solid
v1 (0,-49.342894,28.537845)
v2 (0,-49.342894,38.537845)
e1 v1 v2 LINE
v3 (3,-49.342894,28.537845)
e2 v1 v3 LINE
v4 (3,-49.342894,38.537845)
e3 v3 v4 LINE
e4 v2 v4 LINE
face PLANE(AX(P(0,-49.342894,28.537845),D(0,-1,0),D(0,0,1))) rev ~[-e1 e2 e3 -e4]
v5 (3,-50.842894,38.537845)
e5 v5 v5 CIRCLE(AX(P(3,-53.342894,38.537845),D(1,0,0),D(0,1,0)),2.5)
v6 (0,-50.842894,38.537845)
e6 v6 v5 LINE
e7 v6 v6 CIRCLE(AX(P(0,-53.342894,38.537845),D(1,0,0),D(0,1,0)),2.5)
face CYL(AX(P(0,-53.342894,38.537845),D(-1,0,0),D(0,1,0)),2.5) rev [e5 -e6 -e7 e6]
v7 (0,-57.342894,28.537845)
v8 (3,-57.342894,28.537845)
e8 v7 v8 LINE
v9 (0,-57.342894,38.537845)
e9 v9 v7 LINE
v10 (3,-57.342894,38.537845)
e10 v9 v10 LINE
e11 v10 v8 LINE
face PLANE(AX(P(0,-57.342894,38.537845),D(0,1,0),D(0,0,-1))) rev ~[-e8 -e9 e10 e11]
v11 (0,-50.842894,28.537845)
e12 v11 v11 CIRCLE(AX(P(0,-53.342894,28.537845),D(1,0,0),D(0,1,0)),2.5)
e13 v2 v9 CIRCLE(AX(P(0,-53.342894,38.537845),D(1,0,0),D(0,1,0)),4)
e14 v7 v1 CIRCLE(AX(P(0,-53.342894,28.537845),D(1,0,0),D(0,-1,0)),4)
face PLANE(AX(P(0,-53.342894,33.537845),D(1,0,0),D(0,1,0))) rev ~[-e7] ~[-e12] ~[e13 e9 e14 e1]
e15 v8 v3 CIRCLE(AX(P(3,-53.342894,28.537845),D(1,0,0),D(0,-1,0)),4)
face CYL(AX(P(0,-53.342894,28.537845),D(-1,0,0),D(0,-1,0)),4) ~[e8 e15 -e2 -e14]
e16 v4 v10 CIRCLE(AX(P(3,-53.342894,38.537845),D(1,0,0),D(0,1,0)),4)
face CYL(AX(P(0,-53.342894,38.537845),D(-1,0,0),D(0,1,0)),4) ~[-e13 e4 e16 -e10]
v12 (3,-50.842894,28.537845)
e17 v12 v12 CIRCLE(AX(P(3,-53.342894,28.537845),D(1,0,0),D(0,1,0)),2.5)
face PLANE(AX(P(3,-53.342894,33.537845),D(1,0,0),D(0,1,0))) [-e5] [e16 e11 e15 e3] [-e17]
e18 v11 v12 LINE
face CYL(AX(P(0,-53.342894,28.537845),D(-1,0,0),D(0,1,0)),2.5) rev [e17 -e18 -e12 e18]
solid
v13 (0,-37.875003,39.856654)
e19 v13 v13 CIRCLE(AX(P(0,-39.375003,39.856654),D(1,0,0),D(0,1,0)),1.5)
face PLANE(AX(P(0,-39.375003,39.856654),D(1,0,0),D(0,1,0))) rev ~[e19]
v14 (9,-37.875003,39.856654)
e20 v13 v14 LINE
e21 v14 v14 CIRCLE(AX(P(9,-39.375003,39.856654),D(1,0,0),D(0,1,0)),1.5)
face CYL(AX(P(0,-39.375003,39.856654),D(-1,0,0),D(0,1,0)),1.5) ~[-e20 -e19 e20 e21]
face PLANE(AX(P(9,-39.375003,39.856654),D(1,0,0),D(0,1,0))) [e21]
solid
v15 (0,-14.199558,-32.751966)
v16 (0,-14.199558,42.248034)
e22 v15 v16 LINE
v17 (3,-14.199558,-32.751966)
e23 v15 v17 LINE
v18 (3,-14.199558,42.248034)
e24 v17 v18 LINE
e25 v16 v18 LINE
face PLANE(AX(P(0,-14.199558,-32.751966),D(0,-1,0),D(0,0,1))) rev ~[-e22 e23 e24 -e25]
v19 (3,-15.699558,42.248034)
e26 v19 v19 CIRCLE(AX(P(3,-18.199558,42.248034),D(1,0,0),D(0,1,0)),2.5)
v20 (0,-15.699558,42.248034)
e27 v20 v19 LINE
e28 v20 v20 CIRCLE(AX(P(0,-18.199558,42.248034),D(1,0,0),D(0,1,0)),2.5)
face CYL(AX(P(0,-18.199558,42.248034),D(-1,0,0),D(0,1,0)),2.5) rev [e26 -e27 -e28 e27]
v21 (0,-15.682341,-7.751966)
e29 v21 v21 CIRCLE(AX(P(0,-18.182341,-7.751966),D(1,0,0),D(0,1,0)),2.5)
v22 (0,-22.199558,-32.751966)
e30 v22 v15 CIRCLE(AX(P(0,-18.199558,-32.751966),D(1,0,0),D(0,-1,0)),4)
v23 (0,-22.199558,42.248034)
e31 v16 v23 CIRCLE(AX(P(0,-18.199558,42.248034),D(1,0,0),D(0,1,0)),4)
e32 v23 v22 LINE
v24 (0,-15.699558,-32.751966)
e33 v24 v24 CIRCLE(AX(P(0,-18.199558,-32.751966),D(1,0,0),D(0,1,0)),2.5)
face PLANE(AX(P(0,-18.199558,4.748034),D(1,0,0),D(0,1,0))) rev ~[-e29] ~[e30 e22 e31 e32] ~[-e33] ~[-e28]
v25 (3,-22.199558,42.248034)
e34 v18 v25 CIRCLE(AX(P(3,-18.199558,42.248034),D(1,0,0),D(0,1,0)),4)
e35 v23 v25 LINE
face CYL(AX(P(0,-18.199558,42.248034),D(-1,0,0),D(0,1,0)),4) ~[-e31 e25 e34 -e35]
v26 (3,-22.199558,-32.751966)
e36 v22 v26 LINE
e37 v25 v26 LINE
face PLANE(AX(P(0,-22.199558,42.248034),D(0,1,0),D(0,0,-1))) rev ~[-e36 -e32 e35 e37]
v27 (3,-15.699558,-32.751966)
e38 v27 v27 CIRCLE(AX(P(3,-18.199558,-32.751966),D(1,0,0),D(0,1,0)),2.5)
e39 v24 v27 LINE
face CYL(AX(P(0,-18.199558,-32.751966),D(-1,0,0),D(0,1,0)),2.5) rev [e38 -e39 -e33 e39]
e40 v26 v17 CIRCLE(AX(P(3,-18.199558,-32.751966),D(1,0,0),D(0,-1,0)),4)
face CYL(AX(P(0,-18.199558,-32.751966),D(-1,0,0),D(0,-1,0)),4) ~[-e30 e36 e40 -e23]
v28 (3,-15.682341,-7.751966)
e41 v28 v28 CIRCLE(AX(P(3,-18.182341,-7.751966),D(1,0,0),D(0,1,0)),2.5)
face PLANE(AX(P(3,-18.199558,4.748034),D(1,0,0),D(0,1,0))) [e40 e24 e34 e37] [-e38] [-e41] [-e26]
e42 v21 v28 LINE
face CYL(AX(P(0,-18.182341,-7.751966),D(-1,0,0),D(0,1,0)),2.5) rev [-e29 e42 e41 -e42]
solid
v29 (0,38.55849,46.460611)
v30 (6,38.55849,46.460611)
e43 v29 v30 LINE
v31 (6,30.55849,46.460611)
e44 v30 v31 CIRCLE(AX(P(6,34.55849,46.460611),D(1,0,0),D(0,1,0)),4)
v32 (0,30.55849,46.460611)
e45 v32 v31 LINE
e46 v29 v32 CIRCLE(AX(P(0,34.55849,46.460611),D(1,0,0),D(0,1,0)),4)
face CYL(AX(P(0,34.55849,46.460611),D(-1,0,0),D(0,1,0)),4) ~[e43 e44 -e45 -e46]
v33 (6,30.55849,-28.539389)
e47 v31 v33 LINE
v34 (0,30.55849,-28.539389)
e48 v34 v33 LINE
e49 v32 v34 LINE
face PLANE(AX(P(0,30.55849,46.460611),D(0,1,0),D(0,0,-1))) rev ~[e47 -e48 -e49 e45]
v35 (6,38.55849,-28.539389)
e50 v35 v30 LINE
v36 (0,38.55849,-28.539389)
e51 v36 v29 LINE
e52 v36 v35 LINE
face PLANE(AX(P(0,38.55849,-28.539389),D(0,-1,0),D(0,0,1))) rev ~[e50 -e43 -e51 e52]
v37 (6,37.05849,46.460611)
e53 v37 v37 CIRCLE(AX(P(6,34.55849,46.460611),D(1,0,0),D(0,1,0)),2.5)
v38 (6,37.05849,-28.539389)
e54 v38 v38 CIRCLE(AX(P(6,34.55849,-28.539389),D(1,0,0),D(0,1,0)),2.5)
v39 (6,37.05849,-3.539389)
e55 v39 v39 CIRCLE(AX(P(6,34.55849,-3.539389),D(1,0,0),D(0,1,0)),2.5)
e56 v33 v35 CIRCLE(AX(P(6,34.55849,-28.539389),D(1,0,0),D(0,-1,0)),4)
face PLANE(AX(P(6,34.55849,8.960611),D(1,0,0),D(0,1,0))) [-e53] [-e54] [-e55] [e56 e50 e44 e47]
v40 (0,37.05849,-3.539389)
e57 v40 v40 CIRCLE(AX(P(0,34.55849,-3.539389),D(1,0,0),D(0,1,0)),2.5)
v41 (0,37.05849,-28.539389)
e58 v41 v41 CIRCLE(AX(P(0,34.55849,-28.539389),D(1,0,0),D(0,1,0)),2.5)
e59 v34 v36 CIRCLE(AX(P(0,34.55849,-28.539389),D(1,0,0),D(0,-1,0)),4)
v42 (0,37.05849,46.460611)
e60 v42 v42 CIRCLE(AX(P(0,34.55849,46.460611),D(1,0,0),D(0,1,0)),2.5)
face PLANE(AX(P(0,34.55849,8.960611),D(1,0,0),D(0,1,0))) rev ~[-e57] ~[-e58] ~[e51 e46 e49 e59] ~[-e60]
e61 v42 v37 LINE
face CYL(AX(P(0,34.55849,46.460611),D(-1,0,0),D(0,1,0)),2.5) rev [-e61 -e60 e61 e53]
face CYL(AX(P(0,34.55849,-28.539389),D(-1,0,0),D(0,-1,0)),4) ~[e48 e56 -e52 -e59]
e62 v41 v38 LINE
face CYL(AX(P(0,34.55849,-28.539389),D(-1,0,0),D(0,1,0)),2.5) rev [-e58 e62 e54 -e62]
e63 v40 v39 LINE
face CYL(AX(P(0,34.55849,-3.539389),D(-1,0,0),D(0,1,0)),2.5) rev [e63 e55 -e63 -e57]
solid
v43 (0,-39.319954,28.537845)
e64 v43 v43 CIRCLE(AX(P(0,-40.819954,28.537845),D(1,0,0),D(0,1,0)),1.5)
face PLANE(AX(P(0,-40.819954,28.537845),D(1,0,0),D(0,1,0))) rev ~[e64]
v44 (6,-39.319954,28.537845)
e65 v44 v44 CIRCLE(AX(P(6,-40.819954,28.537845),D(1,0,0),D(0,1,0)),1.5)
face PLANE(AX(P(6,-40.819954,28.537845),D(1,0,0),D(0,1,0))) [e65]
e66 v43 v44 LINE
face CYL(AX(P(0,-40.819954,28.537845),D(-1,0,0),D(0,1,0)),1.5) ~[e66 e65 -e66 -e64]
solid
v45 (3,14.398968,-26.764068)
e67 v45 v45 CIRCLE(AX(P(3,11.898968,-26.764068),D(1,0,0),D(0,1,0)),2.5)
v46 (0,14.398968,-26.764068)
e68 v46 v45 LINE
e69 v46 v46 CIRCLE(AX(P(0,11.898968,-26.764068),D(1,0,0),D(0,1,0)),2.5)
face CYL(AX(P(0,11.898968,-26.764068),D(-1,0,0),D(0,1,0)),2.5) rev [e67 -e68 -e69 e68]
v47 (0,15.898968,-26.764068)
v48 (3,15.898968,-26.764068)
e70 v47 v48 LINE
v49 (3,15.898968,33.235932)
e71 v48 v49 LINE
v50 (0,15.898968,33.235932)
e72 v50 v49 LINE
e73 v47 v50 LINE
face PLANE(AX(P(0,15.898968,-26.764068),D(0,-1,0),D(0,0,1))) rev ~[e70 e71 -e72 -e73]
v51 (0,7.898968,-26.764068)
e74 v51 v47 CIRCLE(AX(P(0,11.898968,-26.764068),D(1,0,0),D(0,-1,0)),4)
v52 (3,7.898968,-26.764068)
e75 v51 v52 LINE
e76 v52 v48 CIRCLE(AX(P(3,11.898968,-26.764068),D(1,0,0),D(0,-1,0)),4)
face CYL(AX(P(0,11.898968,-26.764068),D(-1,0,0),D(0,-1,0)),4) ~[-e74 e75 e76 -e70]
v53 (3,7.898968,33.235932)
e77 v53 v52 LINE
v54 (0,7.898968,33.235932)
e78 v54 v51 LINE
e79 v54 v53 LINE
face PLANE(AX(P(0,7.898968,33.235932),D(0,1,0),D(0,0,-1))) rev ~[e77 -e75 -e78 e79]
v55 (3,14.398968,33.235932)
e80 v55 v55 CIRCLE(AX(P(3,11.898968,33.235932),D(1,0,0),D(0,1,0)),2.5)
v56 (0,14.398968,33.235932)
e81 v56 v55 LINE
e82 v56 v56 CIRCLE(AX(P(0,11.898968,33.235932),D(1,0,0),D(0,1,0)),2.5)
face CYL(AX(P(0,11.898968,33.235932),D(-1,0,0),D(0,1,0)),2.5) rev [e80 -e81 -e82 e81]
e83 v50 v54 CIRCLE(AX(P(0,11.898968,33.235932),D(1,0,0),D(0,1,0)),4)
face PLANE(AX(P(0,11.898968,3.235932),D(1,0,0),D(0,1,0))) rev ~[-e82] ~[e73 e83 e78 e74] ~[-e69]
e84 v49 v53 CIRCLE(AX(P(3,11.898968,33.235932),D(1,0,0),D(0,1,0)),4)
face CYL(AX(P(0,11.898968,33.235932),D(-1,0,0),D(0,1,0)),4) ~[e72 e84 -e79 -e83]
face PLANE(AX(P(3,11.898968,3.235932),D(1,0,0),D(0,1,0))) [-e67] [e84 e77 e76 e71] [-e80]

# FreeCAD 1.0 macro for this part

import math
import FreeCAD as App
import Part
import Sketcher
Q = App.Units.Quantity

doc = App.newDocument("Part")
body = doc.addObject("PartDesign::Body", "Body")

# Sketch on YZ plane
sketch1 = body.newObject("Sketcher::SketchObject", "Sketch")
sketch1.AttachmentSupport = (doc.getObject("YZ_Plane"), [""])
sketch1.MapMode = "FlatFace"
sketch1.addGeometry(Part.LineSegment(App.Vector(-49.342894, 28.537845, 0), App.Vector(-49.342894, 38.537845, 0)), False)
sketch1.addGeometry(Part.ArcOfCircle(Part.Circle(App.Vector(-53.342894, 38.537845, 0), App.Vector(0, 0, 1), 4), math.radians(0), math.radians(180)), False)
sketch1.addGeometry(Part.LineSegment(App.Vector(-57.342894, 38.537845, 0), App.Vector(-57.342894, 28.537845, 0)), False)
sketch1.addGeometry(Part.ArcOfCircle(Part.Circle(App.Vector(-53.342894, 28.537845, 0), App.Vector(0, 0, 1), 4), math.radians(180), math.radians(360)), False)
sketch1.addGeometry(Part.Circle(App.Vector(-53.342894, 28.537845, 0), App.Vector(0, 0, 1), 2.5), False)
sketch1.addGeometry(Part.Circle(App.Vector(-53.342894, 38.537845, 0), App.Vector(0, 0, 1), 2.5), False)
sketch1.addConstraint(Sketcher.Constraint("Tangent", 0, 2, 1, 1))
sketch1.addConstraint(Sketcher.Constraint("Tangent", 1, 2, 2, 1))
sketch1.addConstraint(Sketcher.Constraint("Tangent", 2, 2, 3, 1))
sketch1.addConstraint(Sketcher.Constraint("Tangent", 3, 2, 0, 1))
sketch1.addConstraint(Sketcher.Constraint("Vertical", 0))
sketch1.addConstraint(Sketcher.Constraint("Vertical", 2))
sketch1.addConstraint(Sketcher.Constraint("Coincident", 4, 3, 3, 3))
sketch1.addConstraint(Sketcher.Constraint("Coincident", 5, 3, 1, 3))
sketch1.addConstraint(Sketcher.Constraint("Equal", 4, 5))
sketch1.addConstraint(Sketcher.Constraint("Diameter", 4, Q("5 mm")))
sketch1.addConstraint(Sketcher.Constraint("Radius", 1, Q("4 mm")))
sketch1.addConstraint(Sketcher.Constraint("DistanceY", 0, 1, 0, 2, Q("10 mm")))
sketch1.addConstraint(Sketcher.Constraint("DistanceX", 1, 3, -1, 1, Q("53.342894 mm")))
sketch1.addConstraint(Sketcher.Constraint("DistanceY", -1, 1, 1, 3, Q("38.537845 mm")))
pad1 = body.newObject("PartDesign::Pad", "Pad")
pad1.Profile = sketch1
pad1.Length = 3
body2 = doc.addObject("PartDesign::Body", "Body001")

# Sketch on YZ plane
sketch2 = body2.newObject("Sketcher::SketchObject", "Sketch001")
sketch2.AttachmentSupport = (doc.getObject("YZ_Plane001"), [""])
sketch2.MapMode = "FlatFace"
sketch2.addGeometry(Part.Circle(App.Vector(-39.375003, 39.856654, 0), App.Vector(0, 0, 1), 1.5), False)
sketch2.addConstraint(Sketcher.Constraint("Diameter", 0, Q("3 mm")))
sketch2.addConstraint(Sketcher.Constraint("DistanceX", 0, 3, -1, 1, Q("39.375003 mm")))
sketch2.addConstraint(Sketcher.Constraint("DistanceY", -1, 1, 0, 3, Q("39.856654 mm")))
pad2 = body2.newObject("PartDesign::Pad", "Pad001")
pad2.Profile = sketch2
pad2.Length = 9
body3 = doc.addObject("PartDesign::Body", "Body002")

# Sketch on YZ plane
sketch3 = body3.newObject("Sketcher::SketchObject", "Sketch002")
sketch3.AttachmentSupport = (doc.getObject("YZ_Plane002"), [""])
sketch3.MapMode = "FlatFace"
sketch3.addGeometry(Part.LineSegment(App.Vector(-14.199558, -32.751966, 0), App.Vector(-14.199558, 42.248034, 0)), False)
sketch3.addGeometry(Part.ArcOfCircle(Part.Circle(App.Vector(-18.199558, 42.248034, 0), App.Vector(0, 0, 1), 4), math.radians(0), math.radians(180)), False)
sketch3.addGeometry(Part.LineSegment(App.Vector(-22.199558, 42.248034, 0), App.Vector(-22.199558, -32.751966, 0)), False)
sketch3.addGeometry(Part.ArcOfCircle(Part.Circle(App.Vector(-18.199558, -32.751966, 0), App.Vector(0, 0, 1), 4), math.radians(180), math.radians(360)), False)
sketch3.addGeometry(Part.Circle(App.Vector(-18.199558, -32.751966, 0), App.Vector(0, 0, 1), 2.5), False)
sketch3.addGeometry(Part.Circle(App.Vector(-18.182341, -7.751966, 0), App.Vector(0, 0, 1), 2.5), False)
sketch3.addGeometry(Part.Circle(App.Vector(-18.199558, 42.248034, 0), App.Vector(0, 0, 1), 2.5), False)
sketch3.addConstraint(Sketcher.Constraint("Tangent", 0, 2, 1, 1))
sketch3.addConstraint(Sketcher.Constraint("Tangent", 1, 2, 2, 1))
sketch3.addConstraint(Sketcher.Constraint("Tangent", 2, 2, 3, 1))
sketch3.addConstraint(Sketcher.Constraint("Tangent", 3, 2, 0, 1))
sketch3.addConstraint(Sketcher.Constraint("Vertical", 0))
sketch3.addConstraint(Sketcher.Constraint("Vertical", 2))
sketch3.addConstraint(Sketcher.Constraint("Coincident", 4, 3, 3, 3))
sketch3.addConstraint(Sketcher.Constraint("Coincident", 6, 3, 1, 3))
sketch3.addConstraint(Sketcher.Constraint("Equal", 4, 5))
sketch3.addConstraint(Sketcher.Constraint("Equal", 5, 6))
sketch3.addConstraint(Sketcher.Constraint("Diameter", 4, Q("5 mm")))
sketch3.addConstraint(Sketcher.Constraint("Radius", 1, Q("4 mm")))
sketch3.addConstraint(Sketcher.Constraint("DistanceY", 0, 1, 0, 2, Q("75 mm")))
sketch3.addConstraint(Sketcher.Constraint("DistanceY", 3, 3, 5, 3, Q("25 mm")))
sketch3.addConstraint(Sketcher.Constraint("DistanceX", 5, 3, -1, 1, Q("18.182341 mm")))
sketch3.addConstraint(Sketcher.Constraint("DistanceX", 1, 3, -1, 1, Q("18.199558 mm")))
sketch3.addConstraint(Sketcher.Constraint("DistanceY", -1, 1, 1, 3, Q("42.248034 mm")))
pad3 = body3.newObject("PartDesign::Pad", "Pad002")
pad3.Profile = sketch3
pad3.Length = 3
body4 = doc.addObject("PartDesign::Body", "Body003")

# Sketch on YZ plane
sketch4 = body4.newObject("Sketcher::SketchObject", "Sketch003")
sketch4.AttachmentSupport = (doc.getObject("YZ_Plane003"), [""])
sketch4.MapMode = "FlatFace"
sketch4.addGeometry(Part.LineSegment(App.Vector(15.898968, -26.764068, 0), App.Vector(15.898968, 33.235932, 0)), False)
sketch4.addGeometry(Part.ArcOfCircle(Part.Circle(App.Vector(11.898968, 33.235932, 0), App.Vector(0, 0, 1), 4), math.radians(0), math.radians(180)), False)
sketch4.addGeometry(Part.LineSegment(App.Vector(7.898968, 33.235932, 0), App.Vector(7.898968, -26.764068, 0)), False)
sketch4.addGeometry(Part.ArcOfCircle(Part.Circle(App.Vector(11.898968, -26.764068, 0), App.Vector(0, 0, 1), 4), math.radians(180), math.radians(360)), False)
sketch4.addGeometry(Part.Circle(App.Vector(11.898968, -26.764068, 0), App.Vector(0, 0, 1), 2.5), False)
sketch4.addGeometry(Part.Circle(App.Vector(11.898968, 33.235932, 0), App.Vector(0, 0, 1), 2.5), False)
sketch4.addConstraint(Sketcher.Constraint("Tangent", 0, 2, 1, 1))
sketch4.addConstraint(Sketcher.Constraint("Tangent", 1, 2, 2, 1))
sketch4.addConstraint(Sketcher.Constraint("Tangent", 2, 2, 3, 1))
sketch4.addConstraint(Sketcher.Constraint("Tangent", 3, 2, 0, 1))
sketch4.addConstraint(Sketcher.Constraint("Vertical", 0))
sketch4.addConstraint(Sketcher.Constraint("Vertical", 2))
sketch4.addConstraint(Sketcher.Constraint("Coincident", 4, 3, 3, 3))
sketch4.addConstraint(Sketcher.Constraint("Coincident", 5, 3, 1, 3))
sketch4.addConstraint(Sketcher.Constraint("Equal", 4, 5))
sketch4.addConstraint(Sketcher.Constraint("Diameter", 4, Q("5 mm")))
sketch4.addConstraint(Sketcher.Constraint("Radius", 1, Q("4 mm")))
sketch4.addConstraint(Sketcher.Constraint("DistanceY", 0, 1, 0, 2, Q("60 mm")))
sketch4.addConstraint(Sketcher.Constraint("DistanceY", -1, 1, 1, 3, Q("33.235932 mm")))
sketch4.addConstraint(Sketcher.Constraint("DistanceX", -1, 1, 1, 3, Q("11.898968 mm")))
pad4 = body4.newObject("PartDesign::Pad", "Pad003")
pad4.Profile = sketch4
pad4.Length = 3
body5 = doc.addObject("PartDesign::Body", "Body004")

# Sketch on YZ plane
sketch5 = body5.newObject("Sketcher::SketchObject", "Sketch004")
sketch5.AttachmentSupport = (doc.getObject("YZ_Plane004"), [""])
sketch5.MapMode = "FlatFace"
sketch5.addGeometry(Part.LineSegment(App.Vector(38.55849, -28.539389, 0), App.Vector(38.55849, 46.460611, 0)), False)
sketch5.addGeometry(Part.ArcOfCircle(Part.Circle(App.Vector(34.55849, 46.460611, 0), App.Vector(0, 0, 1), 4), math.radians(0), math.radians(180)), False)
sketch5.addGeometry(Part.LineSegment(App.Vector(30.55849, 46.460611, 0), App.Vector(30.55849, -28.539389, 0)), False)
sketch5.addGeometry(Part.ArcOfCircle(Part.Circle(App.Vector(34.55849, -28.539389, 0), App.Vector(0, 0, 1), 4), math.radians(180), math.radians(360)), False)
sketch5.addGeometry(Part.Circle(App.Vector(34.55849, -28.539389, 0), App.Vector(0, 0, 1), 2.5), False)
sketch5.addGeometry(Part.Circle(App.Vector(34.55849, -3.539389, 0), App.Vector(0, 0, 1), 2.5), False)
sketch5.addGeometry(Part.Circle(App.Vector(34.55849, 46.460611, 0), App.Vector(0, 0, 1), 2.5), False)
sketch5.addConstraint(Sketcher.Constraint("Tangent", 0, 2, 1, 1))
sketch5.addConstraint(Sketcher.Constraint("Tangent", 1, 2, 2, 1))
sketch5.addConstraint(Sketcher.Constraint("Tangent", 2, 2, 3, 1))
sketch5.addConstraint(Sketcher.Constraint("Tangent", 3, 2, 0, 1))
sketch5.addConstraint(Sketcher.Constraint("Vertical", 0))
sketch5.addConstraint(Sketcher.Constraint("Vertical", 2))
sketch5.addConstraint(Sketcher.Constraint("Coincident", 4, 3, 3, 3))
sketch5.addConstraint(Sketcher.Constraint("Coincident", 6, 3, 1, 3))
sketch5.addConstraint(Sketcher.Constraint("Equal", 4, 5))
sketch5.addConstraint(Sketcher.Constraint("Equal", 5, 6))
sketch5.addConstraint(Sketcher.Constraint("Vertical", 4, 3, 5, 3))
sketch5.addConstraint(Sketcher.Constraint("Diameter", 4, Q("5 mm")))
sketch5.addConstraint(Sketcher.Constraint("Radius", 1, Q("4 mm")))
sketch5.addConstraint(Sketcher.Constraint("DistanceY", 0, 1, 0, 2, Q("75 mm")))
sketch5.addConstraint(Sketcher.Constraint("DistanceY", 3, 3, 5, 3, Q("25 mm")))
sketch5.addConstraint(Sketcher.Constraint("DistanceX", -1, 1, 1, 3, Q("34.55849 mm")))
sketch5.addConstraint(Sketcher.Constraint("DistanceY", -1, 1, 1, 3, Q("46.460611 mm")))
pad5 = body5.newObject("PartDesign::Pad", "Pad004")
pad5.Profile = sketch5
pad5.Length = 6
body6 = doc.addObject("PartDesign::Body", "Body005")

# Sketch on YZ plane
sketch6 = body6.newObject("Sketcher::SketchObject", "Sketch005")
sketch6.AttachmentSupport = (doc.getObject("YZ_Plane005"), [""])
sketch6.MapMode = "FlatFace"
sketch6.addGeometry(Part.Circle(App.Vector(-40.819954, 28.537845, 0), App.Vector(0, 0, 1), 1.5), False)
sketch6.addConstraint(Sketcher.Constraint("Diameter", 0, Q("3 mm")))
sketch6.addConstraint(Sketcher.Constraint("DistanceX", 0, 3, -1, 1, Q("40.819954 mm")))
sketch6.addConstraint(Sketcher.Constraint("DistanceY", -1, 1, 0, 3, Q("28.537845 mm")))
pad6 = body6.newObject("PartDesign::Pad", "Pad005")
pad6.Profile = sketch6
pad6.Length = 6

doc.recompute()
